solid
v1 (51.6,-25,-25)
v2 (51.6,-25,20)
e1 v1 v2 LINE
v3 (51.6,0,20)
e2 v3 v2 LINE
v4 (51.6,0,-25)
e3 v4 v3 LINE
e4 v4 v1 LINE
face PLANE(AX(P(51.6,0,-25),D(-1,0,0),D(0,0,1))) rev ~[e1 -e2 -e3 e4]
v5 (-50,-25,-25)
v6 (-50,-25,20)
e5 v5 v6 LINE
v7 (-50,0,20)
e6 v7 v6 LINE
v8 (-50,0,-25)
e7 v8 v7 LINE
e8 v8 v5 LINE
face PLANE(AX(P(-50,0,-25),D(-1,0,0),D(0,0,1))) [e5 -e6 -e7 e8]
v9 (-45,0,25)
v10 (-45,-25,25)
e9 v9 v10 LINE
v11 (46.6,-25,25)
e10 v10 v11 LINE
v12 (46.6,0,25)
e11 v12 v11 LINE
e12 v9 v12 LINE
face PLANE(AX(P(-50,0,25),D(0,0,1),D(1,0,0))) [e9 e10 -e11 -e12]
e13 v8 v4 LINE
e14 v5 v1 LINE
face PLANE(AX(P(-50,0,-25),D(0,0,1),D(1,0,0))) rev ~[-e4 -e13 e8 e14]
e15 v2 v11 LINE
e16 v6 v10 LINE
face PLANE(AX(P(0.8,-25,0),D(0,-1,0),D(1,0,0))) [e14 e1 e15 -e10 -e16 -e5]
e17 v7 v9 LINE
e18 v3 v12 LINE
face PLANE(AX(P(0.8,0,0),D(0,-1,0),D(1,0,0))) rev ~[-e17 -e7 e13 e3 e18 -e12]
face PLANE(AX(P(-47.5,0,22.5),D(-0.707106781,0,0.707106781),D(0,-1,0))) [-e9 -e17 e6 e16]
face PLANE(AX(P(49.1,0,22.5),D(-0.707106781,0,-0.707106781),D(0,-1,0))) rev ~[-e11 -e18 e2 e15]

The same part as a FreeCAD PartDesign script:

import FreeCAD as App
import Part
import Sketcher
from FreeCAD import Vector
Q = App.Units.Quantity


def edges_at(feature, points):
    """Names of the edges that pass closest to the given points."""
    edges = feature.Shape.Edges
    near = lambda p: min(range(len(edges)), key=lambda i: edges[i].distToShape(Part.Vertex(*p))[0])
    return sorted({f"Edge{near(p) + 1}" for p in points})

doc = App.newDocument("Part")
params = doc.addObject("Spreadsheet::Sheet", "Params")
for row, (alias, value) in enumerate([
    ("sketch1_height", "50 mm"),
    ("sketch1_width", "101.6 mm"),
    ("pad1_length", "25 mm"),
    ("chamfer_size", "5 mm"),
], start=1):
    params.set(f"A{row}", alias)
    params.set(f"B{row}", "=" + value)
    params.setAlias(f"B{row}", alias)

body = doc.addObject("PartDesign::Body", "Body")

sketch1 = body.newObject("Sketcher::SketchObject", "Sketch")
sketch1.AttachmentSupport = (doc.getObject("XZ_Plane"), [""])
sketch1.MapMode = "FlatFace"
sketch1.addGeometry([
    Part.LineSegment(Vector(-50, 25, 0), Vector(-50, -25, 0)),
    Part.LineSegment(Vector(-50, -25, 0), Vector(51.6, -25, 0)),
    Part.LineSegment(Vector(51.6, -25, 0), Vector(51.6, 25, 0)),
    Part.LineSegment(Vector(51.6, 25, 0), Vector(-50, 25, 0)),
], False)
sketch1.addConstraint([
    Sketcher.Constraint("Coincident", 0, 2, 1, 1),
    Sketcher.Constraint("Coincident", 1, 2, 2, 1),
    Sketcher.Constraint("Coincident", 2, 2, 3, 1),
    Sketcher.Constraint("Coincident", 3, 2, 0, 1),
    Sketcher.Constraint("Vertical", 0),
    Sketcher.Constraint("Horizontal", 1),
    Sketcher.Constraint("Vertical", 2),
    Sketcher.Constraint("Horizontal", 3),
    Sketcher.Constraint("DistanceY", 0, 2, 0, 1, Q("50 mm")),
    Sketcher.Constraint("DistanceX", 1, 1, 1, 2, Q("101.6 mm")),
    Sketcher.Constraint("DistanceX", 0, 2, -1, 1, Q("50 mm")),
    Sketcher.Constraint("DistanceY", 0, 2, -1, 1, Q("25 mm")),
])
sketch1.setExpression("Constraints[8]", "Params.sketch1_height")
sketch1.setExpression("Constraints[9]", "Params.sketch1_width")
pad1 = body.newObject("PartDesign::Pad", "Pad")
pad1.Profile = sketch1
pad1.setExpression("Length", "Params.pad1_length")
doc.recompute()

chamfer = body.newObject("PartDesign::Chamfer", "Chamfer")
chamfer.Base = (pad1, edges_at(pad1, [(-50, -12.5, 25), (51.6, -12.5, 25)]))
chamfer.setExpression("Size", "Params.chamfer_size")

doc.recompute()
